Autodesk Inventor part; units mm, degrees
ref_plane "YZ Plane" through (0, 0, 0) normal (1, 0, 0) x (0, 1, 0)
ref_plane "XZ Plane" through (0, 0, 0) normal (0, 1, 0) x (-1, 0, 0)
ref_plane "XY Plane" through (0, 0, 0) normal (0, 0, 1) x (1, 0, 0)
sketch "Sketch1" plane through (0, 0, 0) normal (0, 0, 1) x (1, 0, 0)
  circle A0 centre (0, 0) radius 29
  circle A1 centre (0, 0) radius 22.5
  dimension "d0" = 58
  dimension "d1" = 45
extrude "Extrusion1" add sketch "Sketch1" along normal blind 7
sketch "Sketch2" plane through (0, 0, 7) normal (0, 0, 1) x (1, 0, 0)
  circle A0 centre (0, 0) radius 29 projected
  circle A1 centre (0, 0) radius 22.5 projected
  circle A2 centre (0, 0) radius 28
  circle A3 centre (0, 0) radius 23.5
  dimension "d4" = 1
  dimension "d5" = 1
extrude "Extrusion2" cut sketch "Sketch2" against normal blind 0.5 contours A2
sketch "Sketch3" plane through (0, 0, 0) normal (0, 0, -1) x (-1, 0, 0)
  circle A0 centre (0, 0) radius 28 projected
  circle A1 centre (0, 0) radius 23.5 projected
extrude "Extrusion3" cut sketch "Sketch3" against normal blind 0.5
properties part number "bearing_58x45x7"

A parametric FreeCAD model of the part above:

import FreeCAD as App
import Part
import Sketcher
from FreeCAD import Vector

doc = App.newDocument("Part")
body = doc.addObject("PartDesign::Body", "Body")

sketch1 = body.newObject("Sketcher::SketchObject", "Sketch")
sketch1.AttachmentSupport = (doc.getObject("XY_Plane"), [""])
sketch1.MapMode = "FlatFace"
sketch1.addGeometry([
    Part.Circle(Vector(0, 0, 0), Vector(0, 0, 1), 29),
    Part.Circle(Vector(0, 0, 0), Vector(0, 0, 1), 22),
], False)
sketch1.addConstraint([
    Sketcher.Constraint("Coincident", 0, 3, -1, 1),
    Sketcher.Constraint("Coincident", 1, 3, -1, 1),
    Sketcher.Constraint("Diameter", 0, 58.0),
    Sketcher.Constraint("Diameter", 1, 45.0),
])
pad1 = body.newObject("PartDesign::Pad", "Pad")
pad1.Profile = sketch1
pad1.Length = 7

sketch2 = body.newObject("Sketcher::SketchObject", "Sketch001")
sketch2.AttachmentSupport = (doc.getObject("XY_Plane"), [""])
sketch2.MapMode = "FlatFace"
sketch2.AttachmentOffset = App.Placement(Vector(0, 0, 7), App.Rotation())
sketch2.addGeometry([
    Part.Circle(Vector(0, 0, 0), Vector(0, 0, 1), 28),
    Part.Circle(Vector(0, 0, 0), Vector(0, 0, 1), 24),
], False)
sketch2.addConstraint([
    Sketcher.Constraint("Coincident", 0, 3, -1, 1),
    Sketcher.Constraint("Coincident", 1, 3, -1, 1),
    Sketcher.Constraint("Diameter", 0, 56.0),
    Sketcher.Constraint("Diameter", 1, 47.0),
])
pocket1 = body.newObject("PartDesign::Pocket", "Pocket")
pocket1.Profile = sketch2
pocket1.Length = 0.5

sketch3 = body.newObject("Sketcher::SketchObject", "Sketch002")
sketch3.AttachmentSupport = (doc.getObject("XY_Plane"), [""])
sketch3.MapMode = "FlatFace"
sketch3.addGeometry([
    Part.Circle(Vector(0, 0, 0), Vector(0, 0, 1), 28),
    Part.Circle(Vector(0, 0, 0), Vector(0, 0, 1), 24),
], False)
sketch3.addConstraint([
    Sketcher.Constraint("Coincident", 0, 3, -1, 1),
    Sketcher.Constraint("Coincident", 1, 3, -1, 1),
    Sketcher.Constraint("Diameter", 0, 56.0),
    Sketcher.Constraint("Diameter", 1, 47.0),
])
pocket2 = body.newObject("PartDesign::Pocket", "Pocket001")
pocket2.Profile = sketch3
pocket2.Length = 0.5
pocket2.Reversed = True

doc.recompute()
